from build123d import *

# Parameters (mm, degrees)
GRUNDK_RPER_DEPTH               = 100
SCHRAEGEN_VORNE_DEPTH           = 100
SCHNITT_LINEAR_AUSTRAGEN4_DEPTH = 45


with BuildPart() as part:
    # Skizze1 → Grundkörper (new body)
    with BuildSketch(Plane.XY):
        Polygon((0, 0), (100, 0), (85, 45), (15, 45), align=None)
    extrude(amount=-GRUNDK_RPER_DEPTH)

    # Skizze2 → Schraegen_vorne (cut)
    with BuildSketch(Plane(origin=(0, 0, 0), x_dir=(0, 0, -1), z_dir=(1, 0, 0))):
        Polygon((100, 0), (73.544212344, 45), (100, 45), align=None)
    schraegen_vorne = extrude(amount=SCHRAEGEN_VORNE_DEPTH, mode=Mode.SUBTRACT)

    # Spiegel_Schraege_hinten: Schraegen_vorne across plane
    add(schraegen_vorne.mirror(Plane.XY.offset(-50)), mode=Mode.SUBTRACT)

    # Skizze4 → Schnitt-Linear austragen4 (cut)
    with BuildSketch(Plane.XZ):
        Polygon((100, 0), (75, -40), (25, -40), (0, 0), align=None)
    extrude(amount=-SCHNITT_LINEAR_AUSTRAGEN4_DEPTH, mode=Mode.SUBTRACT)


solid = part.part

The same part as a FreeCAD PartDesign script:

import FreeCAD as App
import Part
import Sketcher

V = App.Vector
Q = App.Units.Quantity


def add_polygon(sketch, points):
    """Adds a closed chain of lines whose ends are joined by coincident constraints."""
    first, n = sketch.GeometryCount, len(points)
    for a, b in zip(points, points[1:] + points[:1]):
        sketch.addGeometry(Part.LineSegment(App.Vector(*a, 0), App.Vector(*b, 0)), False)
    for i in range(n):
        sketch.addConstraint(Sketcher.Constraint("Coincident", first + i, 2, first + (i + 1) % n, 1))

doc = App.newDocument("Part")
params = doc.addObject("Spreadsheet::Sheet", "Params")
for row, (alias, value) in enumerate([
    ("sketch1_width", "100 mm"),
    ("sketch1_width2", "70 mm"),
    ("pad1_length", "100 mm"),
    ("sketch2_width", "45 mm"),
    ("pocket1_length", "100 mm"),
    ("sketch3_width", "100 mm"),
    ("sketch3_width2", "50 mm"),
    ("pocket2_length", "45 mm"),
], start=1):
    params.set(f"A{row}", alias)
    params.set(f"B{row}", "=" + value)
    params.setAlias(f"B{row}", alias)

body = doc.addObject("PartDesign::Body", "Body")

# Sketch on XY plane
sketch1 = doc.addObject("Sketcher::SketchObject", "Sketch")
body.addObject(sketch1)
sketch1.AttachmentSupport = (doc.XY_Plane, [""])
sketch1.MapMode = "FlatFace"
add_polygon(sketch1, [(0, 0), (100, 0), (85, 45), (15, 45)])  # lines 0-3
sketch1.addConstraint(Sketcher.Constraint("Horizontal", 0))
sketch1.addConstraint(Sketcher.Constraint("Horizontal", 2))
sketch1.addConstraint(Sketcher.Constraint("Coincident", 3, 2, -1, 1))
sketch1.addConstraint(Sketcher.Constraint("Equal", 1, 3))
sketch1.addConstraint(Sketcher.Constraint("DistanceX", 0, 1, 0, 2, Q("100 mm")))
sketch1.addConstraint(Sketcher.Constraint("DistanceX", 2, 2, 2, 1, Q("70 mm")))
sketch1.addConstraint(Sketcher.Constraint("DistanceY", -1, 1, 1, 2, Q("45 mm")))
sketch1.setExpression("Constraints[8]", "Params.sketch1_width")
sketch1.setExpression("Constraints[9]", "Params.sketch1_width2")
pad1 = doc.addObject("PartDesign::Pad", "Pad")
body.addObject(pad1)
pad1.Profile = sketch1
pad1.setExpression("Length", "Params.pad1_length")
pad1.Reversed = True

# Sketch on YZ plane
sketch2 = doc.addObject("Sketcher::SketchObject", "Sketch001")
body.addObject(sketch2)
sketch2.AttachmentSupport = (doc.YZ_Plane, [""])
sketch2.MapMode = "FlatFace"
add_polygon(sketch2, [(45, -74), (0, -100), (45, -100)])  # lines 0-2
sketch2.addConstraint(Sketcher.Constraint("Horizontal", 1))
sketch2.addConstraint(Sketcher.Constraint("Vertical", 2))
sketch2.addConstraint(Sketcher.Constraint("PointOnObject", 0, 2, -2))
sketch2.addConstraint(Sketcher.Constraint("DistanceX", 1, 1, 1, 2, Q("45 mm")))
sketch2.addConstraint(Sketcher.Constraint("DistanceY", 0, 2, -1, 1, Q("100 mm")))
sketch2.addConstraint(Sketcher.Constraint("Distance", 0, Q("52.200658 mm")))
sketch2.setExpression("Constraints[6]", "Params.sketch2_width")
pocket1 = doc.addObject("PartDesign::Pocket", "Pocket")
body.addObject(pocket1)
pocket1.Profile = sketch2
pocket1.setExpression("Length", "Params.pocket1_length")
pocket1.Reversed = True
doc.recompute()

datumplane = doc.addObject("PartDesign::Plane", "DatumPlane")
body.addObject(datumplane)
datumplane.AttachmentSupport = (doc.XY_Plane, [""])
datumplane.MapMode = "FlatFace"
datumplane.AttachmentOffset = App.Placement(V(0, 0, -50), App.Rotation())
mirrored = doc.addObject("PartDesign::Mirrored", "Mirrored")
body.addObject(mirrored)
mirrored.Originals = [pocket1]
mirrored.MirrorPlane = (datumplane, [""])
body.Tip = mirrored

# Sketch on XZ plane
sketch3 = doc.addObject("Sketcher::SketchObject", "Sketch002")
body.addObject(sketch3)
sketch3.AttachmentSupport = (doc.XZ_Plane, [""])
sketch3.MapMode = "FlatFace"
add_polygon(sketch3, [(75, -40), (100, 0), (0, 0), (25, -40)])  # lines 0-3
sketch3.addConstraint(Sketcher.Constraint("Horizontal", 1))
sketch3.addConstraint(Sketcher.Constraint("Horizontal", 3))
sketch3.addConstraint(Sketcher.Constraint("Coincident", 1, 2, -1, 1))
sketch3.addConstraint(Sketcher.Constraint("Equal", 0, 2))
sketch3.addConstraint(Sketcher.Constraint("DistanceX", 1, 2, 1, 1, Q("100 mm")))
sketch3.addConstraint(Sketcher.Constraint("DistanceX", 3, 1, 3, 2, Q("50 mm")))
sketch3.addConstraint(Sketcher.Constraint("DistanceY", 2, 2, -1, 1, Q("40 mm")))
sketch3.setExpression("Constraints[8]", "Params.sketch3_width")
sketch3.setExpression("Constraints[9]", "Params.sketch3_width2")
pocket2 = doc.addObject("PartDesign::Pocket", "Pocket001")
body.addObject(pocket2)
pocket2.Profile = sketch3
pocket2.setExpression("Length", "Params.pocket2_length")

doc.recompute()
